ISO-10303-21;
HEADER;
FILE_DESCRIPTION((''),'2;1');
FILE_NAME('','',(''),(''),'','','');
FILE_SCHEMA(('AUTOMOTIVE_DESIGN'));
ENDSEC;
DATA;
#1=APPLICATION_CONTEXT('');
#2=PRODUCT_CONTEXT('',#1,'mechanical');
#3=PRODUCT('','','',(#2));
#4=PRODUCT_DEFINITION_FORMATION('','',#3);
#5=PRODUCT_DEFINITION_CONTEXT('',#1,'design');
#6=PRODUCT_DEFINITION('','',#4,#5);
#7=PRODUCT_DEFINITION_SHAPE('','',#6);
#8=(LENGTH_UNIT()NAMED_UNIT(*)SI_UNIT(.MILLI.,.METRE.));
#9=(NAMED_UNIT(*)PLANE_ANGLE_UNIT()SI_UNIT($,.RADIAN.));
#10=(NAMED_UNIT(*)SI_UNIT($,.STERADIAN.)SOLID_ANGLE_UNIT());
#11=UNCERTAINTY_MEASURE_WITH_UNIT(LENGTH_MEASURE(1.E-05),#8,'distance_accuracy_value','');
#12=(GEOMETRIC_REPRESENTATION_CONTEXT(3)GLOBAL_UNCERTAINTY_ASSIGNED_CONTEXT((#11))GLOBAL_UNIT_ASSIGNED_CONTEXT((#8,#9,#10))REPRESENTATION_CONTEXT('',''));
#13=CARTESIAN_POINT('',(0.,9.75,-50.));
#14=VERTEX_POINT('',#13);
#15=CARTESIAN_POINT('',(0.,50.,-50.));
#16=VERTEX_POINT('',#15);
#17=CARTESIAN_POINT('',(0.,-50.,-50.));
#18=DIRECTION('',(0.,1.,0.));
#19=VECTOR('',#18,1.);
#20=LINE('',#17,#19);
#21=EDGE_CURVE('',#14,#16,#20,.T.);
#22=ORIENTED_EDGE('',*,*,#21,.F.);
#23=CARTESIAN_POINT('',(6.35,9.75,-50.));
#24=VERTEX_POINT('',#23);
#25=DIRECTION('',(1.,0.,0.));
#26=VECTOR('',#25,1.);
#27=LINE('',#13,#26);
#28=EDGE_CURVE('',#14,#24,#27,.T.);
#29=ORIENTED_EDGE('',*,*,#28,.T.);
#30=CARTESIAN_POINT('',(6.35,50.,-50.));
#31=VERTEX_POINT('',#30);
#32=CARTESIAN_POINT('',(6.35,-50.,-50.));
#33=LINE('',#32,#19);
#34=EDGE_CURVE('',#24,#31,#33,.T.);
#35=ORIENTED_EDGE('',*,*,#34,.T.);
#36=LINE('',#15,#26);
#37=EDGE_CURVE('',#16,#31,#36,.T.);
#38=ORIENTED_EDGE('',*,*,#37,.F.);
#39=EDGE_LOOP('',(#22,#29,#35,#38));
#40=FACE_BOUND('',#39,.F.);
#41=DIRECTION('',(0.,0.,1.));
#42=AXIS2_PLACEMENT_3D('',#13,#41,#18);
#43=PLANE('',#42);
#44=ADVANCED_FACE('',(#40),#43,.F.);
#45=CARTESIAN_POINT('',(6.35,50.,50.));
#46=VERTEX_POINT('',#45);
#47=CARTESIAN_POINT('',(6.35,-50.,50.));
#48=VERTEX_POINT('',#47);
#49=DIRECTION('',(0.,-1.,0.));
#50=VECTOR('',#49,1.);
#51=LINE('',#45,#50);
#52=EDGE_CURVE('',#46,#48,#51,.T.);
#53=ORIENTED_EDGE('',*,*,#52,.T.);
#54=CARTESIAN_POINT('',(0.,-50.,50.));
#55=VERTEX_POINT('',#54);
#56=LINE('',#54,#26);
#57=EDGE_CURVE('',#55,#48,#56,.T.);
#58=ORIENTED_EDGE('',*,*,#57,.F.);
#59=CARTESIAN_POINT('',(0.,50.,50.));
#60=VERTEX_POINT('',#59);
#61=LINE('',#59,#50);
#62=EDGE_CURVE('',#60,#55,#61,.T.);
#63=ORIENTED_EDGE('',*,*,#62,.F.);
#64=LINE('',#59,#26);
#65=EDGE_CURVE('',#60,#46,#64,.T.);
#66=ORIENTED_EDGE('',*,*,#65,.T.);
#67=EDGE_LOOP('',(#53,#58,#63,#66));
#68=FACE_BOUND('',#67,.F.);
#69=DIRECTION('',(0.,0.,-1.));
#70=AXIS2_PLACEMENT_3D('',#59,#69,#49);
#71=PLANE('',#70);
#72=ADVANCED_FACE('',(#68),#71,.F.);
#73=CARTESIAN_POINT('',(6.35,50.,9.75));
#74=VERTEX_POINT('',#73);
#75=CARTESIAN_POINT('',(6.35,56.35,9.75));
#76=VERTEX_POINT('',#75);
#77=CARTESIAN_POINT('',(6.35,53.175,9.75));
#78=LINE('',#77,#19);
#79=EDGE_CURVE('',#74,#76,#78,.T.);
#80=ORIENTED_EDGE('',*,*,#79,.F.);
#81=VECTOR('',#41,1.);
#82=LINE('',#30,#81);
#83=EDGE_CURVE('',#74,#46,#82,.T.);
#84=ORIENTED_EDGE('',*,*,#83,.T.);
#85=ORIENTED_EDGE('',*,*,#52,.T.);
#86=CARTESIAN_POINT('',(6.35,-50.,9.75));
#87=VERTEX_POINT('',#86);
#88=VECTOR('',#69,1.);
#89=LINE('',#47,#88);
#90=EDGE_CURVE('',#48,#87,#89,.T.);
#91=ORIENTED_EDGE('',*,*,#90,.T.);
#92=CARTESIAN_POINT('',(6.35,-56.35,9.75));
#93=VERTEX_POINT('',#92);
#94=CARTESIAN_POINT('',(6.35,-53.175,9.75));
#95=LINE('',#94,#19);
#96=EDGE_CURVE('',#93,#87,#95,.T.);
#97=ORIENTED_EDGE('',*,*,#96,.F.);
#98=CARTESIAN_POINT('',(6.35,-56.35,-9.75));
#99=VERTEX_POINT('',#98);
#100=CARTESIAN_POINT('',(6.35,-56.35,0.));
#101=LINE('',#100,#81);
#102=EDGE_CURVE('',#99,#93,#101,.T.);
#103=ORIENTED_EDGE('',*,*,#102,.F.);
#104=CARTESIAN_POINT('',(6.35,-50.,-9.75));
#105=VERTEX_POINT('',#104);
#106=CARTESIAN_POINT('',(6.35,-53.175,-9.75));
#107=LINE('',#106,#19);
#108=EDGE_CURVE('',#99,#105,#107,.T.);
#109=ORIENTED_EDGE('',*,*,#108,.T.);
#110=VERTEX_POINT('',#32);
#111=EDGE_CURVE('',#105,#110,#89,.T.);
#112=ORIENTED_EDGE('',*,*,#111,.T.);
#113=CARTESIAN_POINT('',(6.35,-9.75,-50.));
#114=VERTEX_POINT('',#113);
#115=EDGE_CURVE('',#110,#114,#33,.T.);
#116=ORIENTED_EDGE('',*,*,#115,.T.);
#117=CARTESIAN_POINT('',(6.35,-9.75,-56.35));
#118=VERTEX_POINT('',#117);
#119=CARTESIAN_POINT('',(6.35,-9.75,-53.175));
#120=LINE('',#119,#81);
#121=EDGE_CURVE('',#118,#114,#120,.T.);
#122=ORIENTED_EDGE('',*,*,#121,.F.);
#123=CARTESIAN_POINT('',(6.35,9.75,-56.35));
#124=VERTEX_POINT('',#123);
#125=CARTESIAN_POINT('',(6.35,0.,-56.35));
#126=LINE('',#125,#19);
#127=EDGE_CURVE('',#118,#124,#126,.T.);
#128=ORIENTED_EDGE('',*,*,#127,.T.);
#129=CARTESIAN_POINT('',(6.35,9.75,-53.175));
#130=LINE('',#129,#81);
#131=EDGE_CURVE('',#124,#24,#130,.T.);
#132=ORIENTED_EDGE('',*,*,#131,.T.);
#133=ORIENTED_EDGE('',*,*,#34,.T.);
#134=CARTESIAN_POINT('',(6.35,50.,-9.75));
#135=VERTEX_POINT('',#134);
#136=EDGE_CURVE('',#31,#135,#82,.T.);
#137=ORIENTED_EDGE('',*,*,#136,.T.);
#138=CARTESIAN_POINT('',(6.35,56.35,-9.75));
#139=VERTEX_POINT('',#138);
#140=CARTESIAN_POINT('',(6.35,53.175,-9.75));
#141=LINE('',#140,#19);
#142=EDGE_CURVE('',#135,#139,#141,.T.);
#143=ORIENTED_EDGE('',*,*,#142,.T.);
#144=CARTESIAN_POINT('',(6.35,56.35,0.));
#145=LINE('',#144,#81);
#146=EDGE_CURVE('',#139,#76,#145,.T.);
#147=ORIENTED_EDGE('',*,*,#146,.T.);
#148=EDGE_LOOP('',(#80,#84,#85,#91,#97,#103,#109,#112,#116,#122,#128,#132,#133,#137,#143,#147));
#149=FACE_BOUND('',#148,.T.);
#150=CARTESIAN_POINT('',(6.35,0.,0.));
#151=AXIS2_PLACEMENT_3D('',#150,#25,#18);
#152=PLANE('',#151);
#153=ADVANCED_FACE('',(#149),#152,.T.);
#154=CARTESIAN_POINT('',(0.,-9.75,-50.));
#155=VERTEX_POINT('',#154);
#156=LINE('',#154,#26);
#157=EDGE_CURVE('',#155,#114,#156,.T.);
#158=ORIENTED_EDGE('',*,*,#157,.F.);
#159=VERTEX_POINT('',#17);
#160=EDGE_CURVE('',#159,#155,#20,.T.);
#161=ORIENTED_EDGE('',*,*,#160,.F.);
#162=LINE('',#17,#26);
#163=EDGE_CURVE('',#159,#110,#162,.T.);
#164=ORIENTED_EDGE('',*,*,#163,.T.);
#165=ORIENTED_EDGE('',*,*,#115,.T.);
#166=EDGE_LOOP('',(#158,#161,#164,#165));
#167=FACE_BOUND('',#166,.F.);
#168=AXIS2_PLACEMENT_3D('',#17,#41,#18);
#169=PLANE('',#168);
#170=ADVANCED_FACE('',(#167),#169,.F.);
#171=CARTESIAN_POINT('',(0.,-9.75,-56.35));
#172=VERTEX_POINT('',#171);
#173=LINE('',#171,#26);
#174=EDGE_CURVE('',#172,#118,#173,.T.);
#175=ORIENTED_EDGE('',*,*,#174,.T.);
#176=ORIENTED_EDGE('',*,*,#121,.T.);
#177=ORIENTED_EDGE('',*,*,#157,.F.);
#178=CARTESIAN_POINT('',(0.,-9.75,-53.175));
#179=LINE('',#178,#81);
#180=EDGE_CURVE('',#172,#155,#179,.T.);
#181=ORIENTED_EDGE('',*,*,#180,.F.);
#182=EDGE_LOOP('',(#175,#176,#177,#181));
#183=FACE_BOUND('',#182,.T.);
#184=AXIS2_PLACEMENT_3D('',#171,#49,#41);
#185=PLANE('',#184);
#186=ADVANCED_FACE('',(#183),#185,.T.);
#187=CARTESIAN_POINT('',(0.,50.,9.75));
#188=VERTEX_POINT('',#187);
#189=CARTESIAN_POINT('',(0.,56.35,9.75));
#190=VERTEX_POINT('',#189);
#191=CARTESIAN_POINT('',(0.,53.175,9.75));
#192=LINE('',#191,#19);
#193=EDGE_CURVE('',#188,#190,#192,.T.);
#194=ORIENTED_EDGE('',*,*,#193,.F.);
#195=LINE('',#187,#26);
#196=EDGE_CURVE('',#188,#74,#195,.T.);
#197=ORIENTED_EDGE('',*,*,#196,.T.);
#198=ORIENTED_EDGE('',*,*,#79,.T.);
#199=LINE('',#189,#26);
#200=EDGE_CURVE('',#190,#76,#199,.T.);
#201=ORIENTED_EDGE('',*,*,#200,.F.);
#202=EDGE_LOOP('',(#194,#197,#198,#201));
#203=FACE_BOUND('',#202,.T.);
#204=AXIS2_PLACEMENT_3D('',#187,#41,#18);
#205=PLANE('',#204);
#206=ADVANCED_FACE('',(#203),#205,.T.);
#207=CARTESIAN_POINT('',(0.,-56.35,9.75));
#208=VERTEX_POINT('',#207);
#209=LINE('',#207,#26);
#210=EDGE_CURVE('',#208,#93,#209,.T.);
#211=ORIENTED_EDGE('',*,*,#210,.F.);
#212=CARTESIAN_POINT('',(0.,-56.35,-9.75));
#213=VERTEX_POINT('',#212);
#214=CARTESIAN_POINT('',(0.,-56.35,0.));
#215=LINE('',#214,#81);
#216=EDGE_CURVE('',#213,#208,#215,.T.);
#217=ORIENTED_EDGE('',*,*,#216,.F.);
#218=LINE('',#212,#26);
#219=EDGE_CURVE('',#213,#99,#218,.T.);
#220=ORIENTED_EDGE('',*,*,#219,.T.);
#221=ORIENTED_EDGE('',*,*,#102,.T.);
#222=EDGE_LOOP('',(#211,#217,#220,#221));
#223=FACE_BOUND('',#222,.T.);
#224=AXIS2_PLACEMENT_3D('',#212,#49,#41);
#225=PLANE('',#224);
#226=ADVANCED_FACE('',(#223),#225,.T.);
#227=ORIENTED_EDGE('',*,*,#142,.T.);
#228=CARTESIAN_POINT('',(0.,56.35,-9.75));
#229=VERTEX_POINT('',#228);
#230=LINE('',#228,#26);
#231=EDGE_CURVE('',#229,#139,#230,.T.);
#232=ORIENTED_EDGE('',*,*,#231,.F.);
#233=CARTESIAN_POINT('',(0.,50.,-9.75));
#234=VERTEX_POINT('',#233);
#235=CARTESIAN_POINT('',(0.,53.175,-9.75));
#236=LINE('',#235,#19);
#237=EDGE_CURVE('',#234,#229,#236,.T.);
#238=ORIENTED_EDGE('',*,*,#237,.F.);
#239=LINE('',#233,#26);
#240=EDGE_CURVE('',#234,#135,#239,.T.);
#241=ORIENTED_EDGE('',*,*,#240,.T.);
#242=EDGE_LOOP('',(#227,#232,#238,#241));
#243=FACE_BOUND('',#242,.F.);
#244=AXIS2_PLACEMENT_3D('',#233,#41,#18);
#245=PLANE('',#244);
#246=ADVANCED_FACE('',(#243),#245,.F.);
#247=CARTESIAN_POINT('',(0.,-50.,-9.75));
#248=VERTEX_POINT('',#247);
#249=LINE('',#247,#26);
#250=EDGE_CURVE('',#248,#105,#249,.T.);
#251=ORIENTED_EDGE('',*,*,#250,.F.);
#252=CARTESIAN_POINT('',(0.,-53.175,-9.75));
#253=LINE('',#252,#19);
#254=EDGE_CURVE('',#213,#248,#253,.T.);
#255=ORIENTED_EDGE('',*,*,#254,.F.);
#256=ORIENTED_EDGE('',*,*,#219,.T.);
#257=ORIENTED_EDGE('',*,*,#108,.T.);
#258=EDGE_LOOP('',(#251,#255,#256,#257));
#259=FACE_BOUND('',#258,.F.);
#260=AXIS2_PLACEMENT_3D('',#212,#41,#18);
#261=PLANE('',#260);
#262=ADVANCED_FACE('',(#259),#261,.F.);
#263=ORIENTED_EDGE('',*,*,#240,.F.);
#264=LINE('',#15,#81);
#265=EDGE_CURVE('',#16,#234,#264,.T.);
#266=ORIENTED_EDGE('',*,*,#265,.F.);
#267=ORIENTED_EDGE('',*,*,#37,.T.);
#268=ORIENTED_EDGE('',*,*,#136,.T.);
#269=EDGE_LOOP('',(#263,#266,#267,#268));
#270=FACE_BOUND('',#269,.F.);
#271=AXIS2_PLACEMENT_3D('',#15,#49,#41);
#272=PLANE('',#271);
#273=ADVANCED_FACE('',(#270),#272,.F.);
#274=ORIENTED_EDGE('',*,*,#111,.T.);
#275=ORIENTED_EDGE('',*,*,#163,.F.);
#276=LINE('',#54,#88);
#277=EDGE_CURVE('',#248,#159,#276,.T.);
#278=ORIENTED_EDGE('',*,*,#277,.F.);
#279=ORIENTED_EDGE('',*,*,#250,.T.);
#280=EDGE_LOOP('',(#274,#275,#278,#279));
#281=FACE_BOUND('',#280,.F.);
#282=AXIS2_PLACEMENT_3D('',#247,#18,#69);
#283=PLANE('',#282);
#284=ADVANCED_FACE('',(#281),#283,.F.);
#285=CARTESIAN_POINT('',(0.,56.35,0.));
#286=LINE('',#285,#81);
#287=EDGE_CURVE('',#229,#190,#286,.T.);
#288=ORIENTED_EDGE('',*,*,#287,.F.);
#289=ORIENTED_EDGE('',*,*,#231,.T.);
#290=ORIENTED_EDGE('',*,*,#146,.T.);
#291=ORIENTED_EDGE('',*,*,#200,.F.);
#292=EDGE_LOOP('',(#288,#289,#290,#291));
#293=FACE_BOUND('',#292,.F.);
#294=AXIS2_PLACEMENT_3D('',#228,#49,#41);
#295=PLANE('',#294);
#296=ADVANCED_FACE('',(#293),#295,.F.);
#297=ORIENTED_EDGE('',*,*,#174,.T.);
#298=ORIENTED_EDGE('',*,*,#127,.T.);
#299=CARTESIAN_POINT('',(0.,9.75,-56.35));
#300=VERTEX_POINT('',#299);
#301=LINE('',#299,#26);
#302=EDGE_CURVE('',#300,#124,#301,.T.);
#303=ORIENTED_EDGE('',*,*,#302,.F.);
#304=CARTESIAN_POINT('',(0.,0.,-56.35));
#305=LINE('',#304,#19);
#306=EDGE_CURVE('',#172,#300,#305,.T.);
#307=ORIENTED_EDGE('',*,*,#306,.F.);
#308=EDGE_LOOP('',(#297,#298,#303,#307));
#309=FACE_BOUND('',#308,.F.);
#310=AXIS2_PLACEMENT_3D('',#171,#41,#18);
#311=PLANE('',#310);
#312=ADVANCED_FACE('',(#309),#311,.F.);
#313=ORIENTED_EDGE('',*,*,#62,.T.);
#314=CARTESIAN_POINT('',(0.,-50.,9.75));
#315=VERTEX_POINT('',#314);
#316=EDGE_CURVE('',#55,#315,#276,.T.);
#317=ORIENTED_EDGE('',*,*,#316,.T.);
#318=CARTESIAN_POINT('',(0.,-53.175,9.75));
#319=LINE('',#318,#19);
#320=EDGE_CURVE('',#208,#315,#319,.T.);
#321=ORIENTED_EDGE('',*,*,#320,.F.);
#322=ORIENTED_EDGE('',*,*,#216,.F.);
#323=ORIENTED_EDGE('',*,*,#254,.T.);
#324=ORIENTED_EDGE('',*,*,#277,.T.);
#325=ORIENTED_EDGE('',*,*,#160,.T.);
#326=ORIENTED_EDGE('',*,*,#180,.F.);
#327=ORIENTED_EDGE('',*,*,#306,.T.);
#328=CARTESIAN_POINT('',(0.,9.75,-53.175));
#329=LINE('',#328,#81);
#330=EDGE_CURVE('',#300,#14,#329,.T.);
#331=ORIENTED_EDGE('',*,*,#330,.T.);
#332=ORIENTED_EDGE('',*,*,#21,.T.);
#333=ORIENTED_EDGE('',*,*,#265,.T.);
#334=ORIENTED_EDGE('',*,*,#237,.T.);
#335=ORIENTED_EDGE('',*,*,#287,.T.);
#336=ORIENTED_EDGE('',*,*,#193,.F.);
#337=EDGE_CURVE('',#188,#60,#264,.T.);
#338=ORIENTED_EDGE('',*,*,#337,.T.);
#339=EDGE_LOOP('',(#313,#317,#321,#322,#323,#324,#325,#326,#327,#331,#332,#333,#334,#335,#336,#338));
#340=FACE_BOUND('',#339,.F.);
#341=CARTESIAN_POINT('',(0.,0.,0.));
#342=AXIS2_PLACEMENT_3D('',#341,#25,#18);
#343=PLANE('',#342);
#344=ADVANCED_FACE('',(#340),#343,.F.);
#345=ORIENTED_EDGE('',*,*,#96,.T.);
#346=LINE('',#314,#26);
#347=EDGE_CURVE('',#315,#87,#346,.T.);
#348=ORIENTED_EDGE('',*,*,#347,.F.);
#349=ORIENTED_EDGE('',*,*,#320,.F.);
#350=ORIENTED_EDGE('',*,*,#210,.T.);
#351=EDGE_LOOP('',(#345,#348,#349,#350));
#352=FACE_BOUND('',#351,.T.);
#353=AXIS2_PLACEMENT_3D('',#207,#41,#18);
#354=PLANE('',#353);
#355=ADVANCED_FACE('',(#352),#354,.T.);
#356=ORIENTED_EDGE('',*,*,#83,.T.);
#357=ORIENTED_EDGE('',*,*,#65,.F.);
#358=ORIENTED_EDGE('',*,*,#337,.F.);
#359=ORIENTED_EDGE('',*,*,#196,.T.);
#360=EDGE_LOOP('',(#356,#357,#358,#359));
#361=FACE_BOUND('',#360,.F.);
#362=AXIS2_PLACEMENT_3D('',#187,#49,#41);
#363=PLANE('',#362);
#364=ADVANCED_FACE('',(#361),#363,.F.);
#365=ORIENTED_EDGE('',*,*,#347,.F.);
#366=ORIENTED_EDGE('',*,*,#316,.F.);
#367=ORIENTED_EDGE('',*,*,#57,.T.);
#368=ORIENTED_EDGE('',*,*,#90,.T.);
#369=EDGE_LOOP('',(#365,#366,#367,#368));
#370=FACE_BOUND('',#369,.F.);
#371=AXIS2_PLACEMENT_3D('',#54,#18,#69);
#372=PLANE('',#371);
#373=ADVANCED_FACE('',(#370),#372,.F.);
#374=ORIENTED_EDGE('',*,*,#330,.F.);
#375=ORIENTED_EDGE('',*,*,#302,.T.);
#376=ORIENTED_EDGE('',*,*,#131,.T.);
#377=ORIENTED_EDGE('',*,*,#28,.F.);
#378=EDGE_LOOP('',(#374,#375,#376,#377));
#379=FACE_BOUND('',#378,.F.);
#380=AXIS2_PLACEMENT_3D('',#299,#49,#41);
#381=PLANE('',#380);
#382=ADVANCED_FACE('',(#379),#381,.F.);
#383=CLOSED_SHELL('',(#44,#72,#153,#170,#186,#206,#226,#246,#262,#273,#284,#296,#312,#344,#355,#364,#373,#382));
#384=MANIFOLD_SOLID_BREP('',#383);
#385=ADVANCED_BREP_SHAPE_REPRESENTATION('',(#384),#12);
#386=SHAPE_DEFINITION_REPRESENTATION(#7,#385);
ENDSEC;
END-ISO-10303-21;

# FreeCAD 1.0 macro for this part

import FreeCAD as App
import Part
import Sketcher
from FreeCAD import Vector
Q = App.Units.Quantity

doc = App.newDocument("Part")
body = doc.addObject("PartDesign::Body", "Body")

sketch1 = doc.addObject("Sketcher::SketchObject", "Sketch")
body.addObject(sketch1)
sketch1.AttachmentSupport = (doc.YZ_Plane, [""])
sketch1.MapMode = "FlatFace"
sketch1.addGeometry([
    Part.LineSegment(Vector(50, 50, 0), Vector(-50, 50, 0)),
    Part.LineSegment(Vector(-50, 50, 0), Vector(-50, 10, 0)),
    Part.LineSegment(Vector(-50, 10, 0), Vector(-56, 10, 0)),
    Part.LineSegment(Vector(-56, 10, 0), Vector(-56, -10, 0)),
    Part.LineSegment(Vector(-56, -10, 0), Vector(-50, -10, 0)),
    Part.LineSegment(Vector(-50, -10, 0), Vector(-50, -50, 0)),
    Part.LineSegment(Vector(-50, -50, 0), Vector(-10, -50, 0)),
    Part.LineSegment(Vector(-10, -50, 0), Vector(-10, -56, 0)),
    Part.LineSegment(Vector(-10, -56, 0), Vector(10, -56, 0)),
    Part.LineSegment(Vector(10, -56, 0), Vector(10, -50, 0)),
    Part.LineSegment(Vector(10, -50, 0), Vector(50, -50, 0)),
    Part.LineSegment(Vector(50, -50, 0), Vector(50, -10, 0)),
    Part.LineSegment(Vector(50, -10, 0), Vector(56, -10, 0)),
    Part.LineSegment(Vector(56, -10, 0), Vector(56, 10, 0)),
    Part.LineSegment(Vector(56, 10, 0), Vector(50, 10, 0)),
    Part.LineSegment(Vector(50, 10, 0), Vector(50, 50, 0)),
], False)
sketch1.addConstraint([
    Sketcher.Constraint("Coincident", 0, 2, 1, 1),
    Sketcher.Constraint("Coincident", 1, 2, 2, 1),
    Sketcher.Constraint("Coincident", 2, 2, 3, 1),
    Sketcher.Constraint("Coincident", 3, 2, 4, 1),
    Sketcher.Constraint("Coincident", 4, 2, 5, 1),
    Sketcher.Constraint("Coincident", 5, 2, 6, 1),
    Sketcher.Constraint("Coincident", 6, 2, 7, 1),
    Sketcher.Constraint("Coincident", 7, 2, 8, 1),
    Sketcher.Constraint("Coincident", 8, 2, 9, 1),
    Sketcher.Constraint("Coincident", 9, 2, 10, 1),
    Sketcher.Constraint("Coincident", 10, 2, 11, 1),
    Sketcher.Constraint("Coincident", 11, 2, 12, 1),
    Sketcher.Constraint("Coincident", 12, 2, 13, 1),
    Sketcher.Constraint("Coincident", 13, 2, 14, 1),
    Sketcher.Constraint("Coincident", 14, 2, 15, 1),
    Sketcher.Constraint("Coincident", 15, 2, 0, 1),
    Sketcher.Constraint("Horizontal", 0),
    Sketcher.Constraint("Vertical", 1),
    Sketcher.Constraint("Horizontal", 2),
    Sketcher.Constraint("Vertical", 3),
    Sketcher.Constraint("Horizontal", 4),
    Sketcher.Constraint("Vertical", 5),
    Sketcher.Constraint("Horizontal", 6),
    Sketcher.Constraint("Vertical", 7),
    Sketcher.Constraint("Horizontal", 8),
    Sketcher.Constraint("Vertical", 9),
    Sketcher.Constraint("Horizontal", 10),
    Sketcher.Constraint("Vertical", 11),
    Sketcher.Constraint("Horizontal", 12),
    Sketcher.Constraint("Vertical", 13),
    Sketcher.Constraint("Horizontal", 14),
    Sketcher.Constraint("Vertical", 15),
    Sketcher.Constraint("Symmetric", 0, 2, 10, 2, -1, 1),
    Sketcher.Constraint("Symmetric", 2, 2, 12, 2, -1, 1),
    Sketcher.Constraint("Symmetric", 4, 2, 14, 2, -1, 1),
    Sketcher.Constraint("Symmetric", 6, 2, 9, 2, -2),
    Sketcher.Constraint("Symmetric", 4, 2, 11, 2, -2),
    Sketcher.Constraint("Equal", 10, 1),
    Sketcher.Constraint("Equal", 8, 3),
    Sketcher.Constraint("Equal", 14, 7),
    Sketcher.Constraint("DistanceX", 0, 2, 0, 1, Q("100 mm")),
    Sketcher.Constraint("DistanceX", 8, 1, 8, 2, Q("19.5 mm")),
    Sketcher.Constraint("DistanceX", 2, 2, 2, 1, Q("6.35 mm")),
])
pad1 = doc.addObject("PartDesign::Pad", "Pad")
body.addObject(pad1)
pad1.Profile = sketch1
pad1.Length = 6.35

doc.recompute()
